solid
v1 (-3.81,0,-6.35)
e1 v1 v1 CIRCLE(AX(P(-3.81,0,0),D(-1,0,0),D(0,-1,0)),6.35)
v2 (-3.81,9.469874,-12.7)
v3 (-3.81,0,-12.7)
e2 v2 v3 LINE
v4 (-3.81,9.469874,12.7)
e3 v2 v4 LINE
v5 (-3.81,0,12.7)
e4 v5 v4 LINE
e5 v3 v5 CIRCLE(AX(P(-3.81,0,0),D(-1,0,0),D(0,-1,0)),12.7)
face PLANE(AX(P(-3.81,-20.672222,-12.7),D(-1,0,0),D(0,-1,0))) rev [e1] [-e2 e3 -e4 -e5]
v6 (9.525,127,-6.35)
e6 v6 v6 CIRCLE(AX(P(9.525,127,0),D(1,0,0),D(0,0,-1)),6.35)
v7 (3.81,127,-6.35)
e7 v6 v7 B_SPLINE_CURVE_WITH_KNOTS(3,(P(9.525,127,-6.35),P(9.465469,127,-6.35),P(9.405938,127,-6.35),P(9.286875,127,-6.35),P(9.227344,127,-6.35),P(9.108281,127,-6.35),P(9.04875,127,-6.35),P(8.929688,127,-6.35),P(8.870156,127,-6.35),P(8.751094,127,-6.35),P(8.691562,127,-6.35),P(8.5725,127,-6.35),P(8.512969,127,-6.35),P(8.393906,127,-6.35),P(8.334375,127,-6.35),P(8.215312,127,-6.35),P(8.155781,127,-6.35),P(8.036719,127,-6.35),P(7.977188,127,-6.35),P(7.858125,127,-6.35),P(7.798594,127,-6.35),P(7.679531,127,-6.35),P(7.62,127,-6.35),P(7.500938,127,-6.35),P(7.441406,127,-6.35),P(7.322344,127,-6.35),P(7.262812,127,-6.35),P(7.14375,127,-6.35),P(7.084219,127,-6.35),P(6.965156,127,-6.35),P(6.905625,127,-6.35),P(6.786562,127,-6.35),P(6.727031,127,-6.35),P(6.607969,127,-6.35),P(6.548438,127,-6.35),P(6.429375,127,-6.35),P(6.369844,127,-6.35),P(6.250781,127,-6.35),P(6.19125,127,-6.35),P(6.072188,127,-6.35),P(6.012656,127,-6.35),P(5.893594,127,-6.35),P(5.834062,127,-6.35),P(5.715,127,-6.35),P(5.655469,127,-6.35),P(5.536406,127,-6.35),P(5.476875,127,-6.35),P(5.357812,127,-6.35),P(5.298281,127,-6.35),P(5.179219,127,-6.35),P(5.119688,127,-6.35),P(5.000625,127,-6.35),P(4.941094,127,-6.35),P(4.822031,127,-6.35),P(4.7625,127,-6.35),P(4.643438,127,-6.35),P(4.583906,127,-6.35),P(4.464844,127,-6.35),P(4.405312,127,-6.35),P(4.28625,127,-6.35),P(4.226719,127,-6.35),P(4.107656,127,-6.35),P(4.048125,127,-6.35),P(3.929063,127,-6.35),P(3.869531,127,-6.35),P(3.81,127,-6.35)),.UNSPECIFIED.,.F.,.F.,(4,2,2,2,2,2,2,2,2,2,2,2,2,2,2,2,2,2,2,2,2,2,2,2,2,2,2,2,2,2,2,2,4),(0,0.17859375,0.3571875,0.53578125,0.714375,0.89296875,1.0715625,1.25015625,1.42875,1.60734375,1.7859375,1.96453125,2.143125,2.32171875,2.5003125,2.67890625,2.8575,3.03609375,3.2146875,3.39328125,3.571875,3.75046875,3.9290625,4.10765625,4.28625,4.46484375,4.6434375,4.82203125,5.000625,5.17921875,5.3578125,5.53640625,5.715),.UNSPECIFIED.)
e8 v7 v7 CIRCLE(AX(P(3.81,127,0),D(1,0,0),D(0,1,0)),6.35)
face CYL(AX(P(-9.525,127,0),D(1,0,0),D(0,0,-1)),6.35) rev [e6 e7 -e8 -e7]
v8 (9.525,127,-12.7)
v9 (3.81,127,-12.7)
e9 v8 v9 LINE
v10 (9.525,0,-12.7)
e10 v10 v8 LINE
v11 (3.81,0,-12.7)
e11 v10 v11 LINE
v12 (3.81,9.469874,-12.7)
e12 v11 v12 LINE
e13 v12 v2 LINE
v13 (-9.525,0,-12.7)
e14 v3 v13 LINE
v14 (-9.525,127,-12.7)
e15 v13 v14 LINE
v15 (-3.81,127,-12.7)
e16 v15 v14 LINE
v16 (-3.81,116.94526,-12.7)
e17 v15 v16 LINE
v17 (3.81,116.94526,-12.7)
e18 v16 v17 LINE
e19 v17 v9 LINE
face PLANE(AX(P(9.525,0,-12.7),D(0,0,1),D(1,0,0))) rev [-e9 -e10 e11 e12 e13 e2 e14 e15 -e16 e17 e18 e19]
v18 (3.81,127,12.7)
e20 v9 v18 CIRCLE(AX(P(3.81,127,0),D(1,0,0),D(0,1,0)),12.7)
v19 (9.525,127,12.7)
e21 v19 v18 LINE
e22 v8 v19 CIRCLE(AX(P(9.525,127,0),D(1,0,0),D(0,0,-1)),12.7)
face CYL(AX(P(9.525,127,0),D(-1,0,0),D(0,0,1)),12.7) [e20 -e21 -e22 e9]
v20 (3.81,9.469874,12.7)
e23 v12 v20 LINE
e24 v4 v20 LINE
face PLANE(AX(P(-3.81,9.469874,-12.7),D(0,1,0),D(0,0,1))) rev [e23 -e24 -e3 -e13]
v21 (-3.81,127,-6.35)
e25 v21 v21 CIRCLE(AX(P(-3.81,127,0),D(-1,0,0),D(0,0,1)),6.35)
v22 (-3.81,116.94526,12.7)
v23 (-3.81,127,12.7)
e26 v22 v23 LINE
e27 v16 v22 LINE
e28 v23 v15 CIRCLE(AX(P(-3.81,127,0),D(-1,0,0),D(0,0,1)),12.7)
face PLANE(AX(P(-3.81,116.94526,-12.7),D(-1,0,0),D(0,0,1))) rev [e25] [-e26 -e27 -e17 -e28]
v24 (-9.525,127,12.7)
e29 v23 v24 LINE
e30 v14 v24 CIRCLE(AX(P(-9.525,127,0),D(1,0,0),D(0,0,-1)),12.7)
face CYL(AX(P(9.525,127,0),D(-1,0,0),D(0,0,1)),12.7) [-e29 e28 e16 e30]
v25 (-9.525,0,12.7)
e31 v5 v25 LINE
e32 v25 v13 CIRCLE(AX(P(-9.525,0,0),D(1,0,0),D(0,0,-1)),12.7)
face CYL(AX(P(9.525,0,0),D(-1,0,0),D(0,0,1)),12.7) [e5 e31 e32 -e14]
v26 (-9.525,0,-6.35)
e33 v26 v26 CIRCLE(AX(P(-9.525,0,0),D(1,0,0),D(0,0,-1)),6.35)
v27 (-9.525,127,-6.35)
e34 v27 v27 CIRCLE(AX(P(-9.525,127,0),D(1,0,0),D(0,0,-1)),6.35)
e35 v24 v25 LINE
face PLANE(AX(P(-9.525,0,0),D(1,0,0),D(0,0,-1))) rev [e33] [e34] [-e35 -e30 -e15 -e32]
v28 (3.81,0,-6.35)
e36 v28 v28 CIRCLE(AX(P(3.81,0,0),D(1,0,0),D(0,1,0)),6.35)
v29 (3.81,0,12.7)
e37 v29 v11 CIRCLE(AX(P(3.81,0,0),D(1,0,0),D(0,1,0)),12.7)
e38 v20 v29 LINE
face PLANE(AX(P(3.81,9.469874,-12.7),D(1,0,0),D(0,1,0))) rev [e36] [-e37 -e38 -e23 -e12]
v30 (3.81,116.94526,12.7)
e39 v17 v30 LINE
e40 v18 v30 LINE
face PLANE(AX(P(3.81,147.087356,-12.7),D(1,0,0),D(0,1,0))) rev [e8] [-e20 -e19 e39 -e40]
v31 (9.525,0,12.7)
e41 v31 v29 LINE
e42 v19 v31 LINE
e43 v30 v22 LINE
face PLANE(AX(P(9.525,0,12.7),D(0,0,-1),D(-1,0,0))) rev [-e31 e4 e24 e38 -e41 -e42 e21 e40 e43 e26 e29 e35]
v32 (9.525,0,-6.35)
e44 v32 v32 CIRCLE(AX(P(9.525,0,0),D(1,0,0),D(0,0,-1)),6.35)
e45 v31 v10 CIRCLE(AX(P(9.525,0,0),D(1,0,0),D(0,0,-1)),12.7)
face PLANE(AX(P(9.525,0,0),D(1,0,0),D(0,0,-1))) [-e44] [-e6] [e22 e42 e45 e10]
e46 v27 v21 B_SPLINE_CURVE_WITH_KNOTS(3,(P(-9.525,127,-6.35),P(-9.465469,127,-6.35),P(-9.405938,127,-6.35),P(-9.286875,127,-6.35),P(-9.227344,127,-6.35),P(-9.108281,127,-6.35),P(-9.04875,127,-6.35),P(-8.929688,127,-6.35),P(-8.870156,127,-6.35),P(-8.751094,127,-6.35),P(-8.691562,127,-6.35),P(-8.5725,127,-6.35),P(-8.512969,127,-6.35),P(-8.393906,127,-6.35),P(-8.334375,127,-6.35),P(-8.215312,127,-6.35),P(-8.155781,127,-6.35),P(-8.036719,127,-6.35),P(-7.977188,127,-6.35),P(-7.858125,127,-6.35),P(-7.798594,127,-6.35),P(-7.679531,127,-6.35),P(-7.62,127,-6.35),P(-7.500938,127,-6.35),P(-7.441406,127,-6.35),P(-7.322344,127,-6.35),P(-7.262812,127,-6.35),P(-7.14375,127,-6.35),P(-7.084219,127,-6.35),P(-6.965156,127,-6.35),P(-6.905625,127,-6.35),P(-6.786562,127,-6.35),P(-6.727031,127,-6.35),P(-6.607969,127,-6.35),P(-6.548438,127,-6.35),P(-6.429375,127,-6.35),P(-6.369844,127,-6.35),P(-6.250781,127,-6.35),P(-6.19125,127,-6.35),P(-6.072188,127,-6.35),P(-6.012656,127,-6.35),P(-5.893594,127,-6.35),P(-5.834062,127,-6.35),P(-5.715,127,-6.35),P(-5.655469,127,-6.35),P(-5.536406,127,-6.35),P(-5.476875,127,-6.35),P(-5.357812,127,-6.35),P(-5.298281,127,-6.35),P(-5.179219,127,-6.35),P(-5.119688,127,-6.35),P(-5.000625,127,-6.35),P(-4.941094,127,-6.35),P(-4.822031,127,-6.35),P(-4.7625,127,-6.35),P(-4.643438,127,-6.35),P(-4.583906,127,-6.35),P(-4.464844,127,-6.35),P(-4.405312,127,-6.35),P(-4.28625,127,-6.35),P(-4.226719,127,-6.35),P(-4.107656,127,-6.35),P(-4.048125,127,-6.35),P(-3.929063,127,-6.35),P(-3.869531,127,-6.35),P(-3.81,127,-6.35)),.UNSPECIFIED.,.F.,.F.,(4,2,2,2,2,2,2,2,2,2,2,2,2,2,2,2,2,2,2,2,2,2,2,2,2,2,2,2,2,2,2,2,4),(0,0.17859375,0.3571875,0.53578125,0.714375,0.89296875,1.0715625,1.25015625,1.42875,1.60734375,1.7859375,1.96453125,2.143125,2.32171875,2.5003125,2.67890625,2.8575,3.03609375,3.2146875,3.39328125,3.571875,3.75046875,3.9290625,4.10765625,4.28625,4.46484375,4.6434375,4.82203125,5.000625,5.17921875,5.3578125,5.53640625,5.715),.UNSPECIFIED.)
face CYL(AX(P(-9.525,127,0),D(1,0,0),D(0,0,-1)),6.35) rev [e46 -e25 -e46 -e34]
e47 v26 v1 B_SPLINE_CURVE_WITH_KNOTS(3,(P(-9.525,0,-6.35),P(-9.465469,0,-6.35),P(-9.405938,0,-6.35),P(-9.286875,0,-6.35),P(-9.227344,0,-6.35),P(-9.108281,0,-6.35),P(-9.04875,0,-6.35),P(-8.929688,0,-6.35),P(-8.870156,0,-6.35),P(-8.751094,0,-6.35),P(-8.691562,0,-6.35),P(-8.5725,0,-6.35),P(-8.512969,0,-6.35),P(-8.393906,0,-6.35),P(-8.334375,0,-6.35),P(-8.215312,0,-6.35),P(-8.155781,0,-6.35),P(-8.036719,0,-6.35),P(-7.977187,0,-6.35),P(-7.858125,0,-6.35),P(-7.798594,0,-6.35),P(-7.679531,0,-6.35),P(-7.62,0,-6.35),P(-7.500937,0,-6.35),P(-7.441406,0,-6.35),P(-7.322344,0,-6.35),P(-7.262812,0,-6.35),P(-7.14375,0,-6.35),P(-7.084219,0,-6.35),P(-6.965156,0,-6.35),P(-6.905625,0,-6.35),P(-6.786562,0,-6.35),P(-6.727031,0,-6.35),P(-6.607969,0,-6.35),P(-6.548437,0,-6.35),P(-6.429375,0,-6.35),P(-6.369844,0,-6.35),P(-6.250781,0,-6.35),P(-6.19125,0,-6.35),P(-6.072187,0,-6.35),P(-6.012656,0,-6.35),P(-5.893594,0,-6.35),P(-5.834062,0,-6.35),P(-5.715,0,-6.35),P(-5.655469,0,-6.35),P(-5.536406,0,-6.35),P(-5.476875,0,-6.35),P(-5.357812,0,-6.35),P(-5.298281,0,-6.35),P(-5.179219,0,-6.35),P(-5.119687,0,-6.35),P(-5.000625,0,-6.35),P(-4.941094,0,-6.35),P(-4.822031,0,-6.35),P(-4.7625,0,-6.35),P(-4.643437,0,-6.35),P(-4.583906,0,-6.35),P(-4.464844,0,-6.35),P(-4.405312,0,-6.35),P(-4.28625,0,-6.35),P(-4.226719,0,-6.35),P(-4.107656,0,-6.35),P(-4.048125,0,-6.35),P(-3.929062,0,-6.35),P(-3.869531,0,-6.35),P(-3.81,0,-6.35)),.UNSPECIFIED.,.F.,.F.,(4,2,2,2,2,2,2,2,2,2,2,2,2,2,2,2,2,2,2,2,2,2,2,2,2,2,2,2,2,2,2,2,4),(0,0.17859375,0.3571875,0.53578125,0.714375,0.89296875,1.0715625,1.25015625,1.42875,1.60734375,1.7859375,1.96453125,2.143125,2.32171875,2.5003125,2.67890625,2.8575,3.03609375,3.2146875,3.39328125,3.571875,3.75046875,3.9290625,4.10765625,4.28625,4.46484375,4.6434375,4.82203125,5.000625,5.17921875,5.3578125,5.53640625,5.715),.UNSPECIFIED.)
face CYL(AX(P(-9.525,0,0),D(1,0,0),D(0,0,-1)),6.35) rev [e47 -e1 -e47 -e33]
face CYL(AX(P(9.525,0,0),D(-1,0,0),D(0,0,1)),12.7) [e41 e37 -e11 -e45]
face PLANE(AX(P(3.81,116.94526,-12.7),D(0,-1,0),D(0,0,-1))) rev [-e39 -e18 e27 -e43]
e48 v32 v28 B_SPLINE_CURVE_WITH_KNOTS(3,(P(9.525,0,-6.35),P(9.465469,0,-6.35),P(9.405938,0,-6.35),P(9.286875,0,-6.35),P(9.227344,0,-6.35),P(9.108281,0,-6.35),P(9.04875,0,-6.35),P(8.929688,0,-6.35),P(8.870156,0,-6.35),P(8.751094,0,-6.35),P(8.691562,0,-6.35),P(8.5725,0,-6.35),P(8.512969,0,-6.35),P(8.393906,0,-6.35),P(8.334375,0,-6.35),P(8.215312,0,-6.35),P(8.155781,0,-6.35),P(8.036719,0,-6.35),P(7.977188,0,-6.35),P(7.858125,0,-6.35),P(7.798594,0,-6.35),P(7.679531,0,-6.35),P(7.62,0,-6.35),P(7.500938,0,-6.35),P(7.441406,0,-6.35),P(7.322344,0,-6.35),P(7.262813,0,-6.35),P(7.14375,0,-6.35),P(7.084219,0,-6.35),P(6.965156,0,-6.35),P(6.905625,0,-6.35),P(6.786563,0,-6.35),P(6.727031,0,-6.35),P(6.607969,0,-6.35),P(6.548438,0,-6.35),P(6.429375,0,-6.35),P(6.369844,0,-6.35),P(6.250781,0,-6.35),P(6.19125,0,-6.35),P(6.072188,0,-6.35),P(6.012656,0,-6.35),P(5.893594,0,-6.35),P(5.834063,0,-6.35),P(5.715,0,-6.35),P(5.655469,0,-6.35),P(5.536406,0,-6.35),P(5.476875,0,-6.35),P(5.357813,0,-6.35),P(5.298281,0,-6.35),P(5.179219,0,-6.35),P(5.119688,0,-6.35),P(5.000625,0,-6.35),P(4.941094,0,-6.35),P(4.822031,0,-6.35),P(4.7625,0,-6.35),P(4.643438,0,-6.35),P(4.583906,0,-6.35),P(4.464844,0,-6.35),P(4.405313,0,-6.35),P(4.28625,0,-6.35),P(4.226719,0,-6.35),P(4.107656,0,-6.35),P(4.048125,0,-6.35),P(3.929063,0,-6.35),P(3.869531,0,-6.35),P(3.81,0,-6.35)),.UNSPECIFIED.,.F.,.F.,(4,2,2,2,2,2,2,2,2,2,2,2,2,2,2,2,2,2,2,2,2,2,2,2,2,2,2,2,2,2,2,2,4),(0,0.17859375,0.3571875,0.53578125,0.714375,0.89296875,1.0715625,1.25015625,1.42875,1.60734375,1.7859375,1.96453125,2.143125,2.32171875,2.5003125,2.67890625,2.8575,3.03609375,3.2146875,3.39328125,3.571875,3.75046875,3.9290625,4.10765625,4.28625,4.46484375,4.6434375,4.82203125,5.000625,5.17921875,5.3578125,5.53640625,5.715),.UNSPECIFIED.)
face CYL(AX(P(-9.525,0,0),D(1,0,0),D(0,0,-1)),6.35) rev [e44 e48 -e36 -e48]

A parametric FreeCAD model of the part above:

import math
import FreeCAD as App
import Part
import Sketcher
Q = App.Units.Quantity

doc = App.newDocument("Part")
body = doc.addObject("PartDesign::Body", "Body")

sketch1 = doc.addObject("Sketcher::SketchObject", "Sketch")
body.addObject(sketch1)
sketch1.AttachmentSupport = (doc.YZ_Plane, [""])
sketch1.MapMode = "FlatFace"
sketch1.addGeometry([
    Part.LineSegment(App.Vector(127, 13, 0), App.Vector(0, 13, 0)),
    Part.ArcOfCircle(Part.Circle(App.Vector(0, 0, 0), App.Vector(0, 0, 1), 13), math.radians(90), math.radians(270)),
    Part.LineSegment(App.Vector(0, -13, 0), App.Vector(127, -13, 0)),
    Part.ArcOfCircle(Part.Circle(App.Vector(127, 0, 0), App.Vector(0, 0, 1), 13), math.radians(-90), math.radians(90)),
], False)
sketch1.addConstraint([
    Sketcher.Constraint("Tangent", 0, 2, 1, 1),
    Sketcher.Constraint("Tangent", 1, 2, 2, 1),
    Sketcher.Constraint("Tangent", 2, 2, 3, 1),
    Sketcher.Constraint("Tangent", 3, 2, 0, 1),
    Sketcher.Constraint("Horizontal", 0),
    Sketcher.Constraint("Horizontal", 2),
    Sketcher.Constraint("Coincident", 1, 3, -1, 1),
    Sketcher.Constraint("Radius", 1, Q("0.5 in")),
    Sketcher.Constraint("DistanceX", 0, 2, 0, 1, Q("5 in")),
])
pad1 = doc.addObject("PartDesign::Pad", "Pad")
body.addObject(pad1)
pad1.Profile = sketch1
pad1.Length = Q("0.75 in")
pad1.Midplane = True

sketch2 = doc.addObject("Sketcher::SketchObject", "Sketch001")
body.addObject(sketch2)
sketch2.AttachmentSupport = (doc.XY_Plane, [""])
sketch2.MapMode = "FlatFace"
sketch2.AttachmentOffset = App.Placement(App.Vector(0, 0, 0.5 * 25.4), App.Rotation())
sketch2.addGeometry([
    Part.LineSegment(App.Vector(-4, 147, 0), App.Vector(-4, 117, 0)),
    Part.LineSegment(App.Vector(-4, 117, 0), App.Vector(4, 117, 0)),
    Part.LineSegment(App.Vector(4, 117, 0), App.Vector(4, 147, 0)),
    Part.LineSegment(App.Vector(4, 147, 0), App.Vector(-4, 147, 0)),
    Part.LineSegment(App.Vector(-4, 9, 0), App.Vector(-4, -21, 0)),
    Part.LineSegment(App.Vector(-4, -21, 0), App.Vector(4, -21, 0)),
    Part.LineSegment(App.Vector(4, -21, 0), App.Vector(4, 9, 0)),
    Part.LineSegment(App.Vector(4, 9, 0), App.Vector(-4, 9, 0)),
], False)
sketch2.addConstraint([
    Sketcher.Constraint("Coincident", 0, 2, 1, 1),
    Sketcher.Constraint("Coincident", 1, 2, 2, 1),
    Sketcher.Constraint("Coincident", 2, 2, 3, 1),
    Sketcher.Constraint("Coincident", 3, 2, 0, 1),
    Sketcher.Constraint("Coincident", 4, 2, 5, 1),
    Sketcher.Constraint("Coincident", 5, 2, 6, 1),
    Sketcher.Constraint("Coincident", 6, 2, 7, 1),
    Sketcher.Constraint("Coincident", 7, 2, 4, 1),
    Sketcher.Constraint("Vertical", 0),
    Sketcher.Constraint("Horizontal", 1),
    Sketcher.Constraint("Vertical", 2),
    Sketcher.Constraint("Horizontal", 3),
    Sketcher.Constraint("Vertical", 4),
    Sketcher.Constraint("Horizontal", 5),
    Sketcher.Constraint("Vertical", 6),
    Sketcher.Constraint("Horizontal", 7),
    Sketcher.Constraint("Vertical", 3, 2, 4, 2),
    Sketcher.Constraint("Vertical", 2, 2, 5, 2),
    Sketcher.Constraint("Equal", 2, 4),
    Sketcher.Constraint("DistanceX", 1, 1, 1, 2, Q("0.3 in")),
    Sketcher.Constraint("DistanceX", 0, 2, -1, 1, Q("0.15 in")),
    Sketcher.Constraint("DistanceY", 0, 2, 0, 1, 30.142095),
    Sketcher.Constraint("DistanceY", -1, 1, 0, 2, 116.94526),
    Sketcher.Constraint("DistanceY", 4, 2, -1, 1, 20.672222),
])
pocket1 = doc.addObject("PartDesign::Pocket", "Pocket")
body.addObject(pocket1)
pocket1.Profile = sketch2
pocket1.Type = "ThroughAll"
pocket1.Midplane = True

sketch3 = doc.addObject("Sketcher::SketchObject", "Sketch002")
body.addObject(sketch3)
sketch3.AttachmentSupport = (doc.YZ_Plane, [""])
sketch3.MapMode = "FlatFace"
sketch3.AttachmentOffset = App.Placement(App.Vector(0, 0, 0.375 * 25.4), App.Rotation())
sketch3.addGeometry([
    Part.Circle(App.Vector(0, 0, 0), App.Vector(0, 0, 1), 6),
    Part.Circle(App.Vector(127, 0, 0), App.Vector(0, 0, 1), 6),
], False)
sketch3.addConstraint([
    Sketcher.Constraint("Coincident", 0, 3, -1, 1),
    Sketcher.Constraint("Equal", 0, 1),
    Sketcher.Constraint("PointOnObject", 1, 3, -1),
    Sketcher.Constraint("Diameter", 0, Q("0.5 in")),
    Sketcher.Constraint("DistanceX", -1, 1, 1, 3, Q("5 in")),
])
pocket2 = doc.addObject("PartDesign::Pocket", "Pocket001")
body.addObject(pocket2)
pocket2.Profile = sketch3
pocket2.Type = "ThroughAll"
pocket2.Midplane = True

doc.recompute()
